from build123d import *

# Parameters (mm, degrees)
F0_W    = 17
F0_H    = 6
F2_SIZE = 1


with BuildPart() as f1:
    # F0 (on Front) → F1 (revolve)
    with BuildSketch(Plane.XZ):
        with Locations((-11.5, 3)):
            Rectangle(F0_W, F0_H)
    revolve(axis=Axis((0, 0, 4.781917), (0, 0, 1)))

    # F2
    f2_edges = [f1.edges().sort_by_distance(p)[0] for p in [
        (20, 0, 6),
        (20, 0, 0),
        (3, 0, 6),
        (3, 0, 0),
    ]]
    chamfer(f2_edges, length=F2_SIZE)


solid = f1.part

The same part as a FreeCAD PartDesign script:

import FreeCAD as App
import Part
import Sketcher
from FreeCAD import Vector


def edges_at(feature, points):
    """Names of the edges that pass closest to the given points."""
    edges = feature.Shape.Edges
    near = lambda p: min(range(len(edges)), key=lambda i: edges[i].distToShape(Part.Vertex(*p))[0])
    return sorted({f"Edge{near(p) + 1}" for p in points})


def add_polygon(sketch, points):
    """Adds a closed chain of lines whose ends are joined by coincident constraints."""
    first, n = sketch.GeometryCount, len(points)
    for a, b in zip(points, points[1:] + points[:1]):
        sketch.addGeometry(Part.LineSegment(App.Vector(*a, 0), App.Vector(*b, 0)), False)
    for i in range(n):
        sketch.addConstraint(Sketcher.Constraint("Coincident", first + i, 2, first + (i + 1) % n, 1))

doc = App.newDocument("Part")
body = doc.addObject("PartDesign::Body", "Body")

# Sketch on XZ plane
sketch1 = body.newObject("Sketcher::SketchObject", "Sketch")
sketch1.AttachmentSupport = (doc.getObject("XZ_Plane"), [""])
sketch1.MapMode = "FlatFace"
add_polygon(sketch1, [(-20, 6), (-20, 0), (-3, 0), (-3, 6)])  # lines 0-3
sketch1.addConstraint(Sketcher.Constraint("Vertical", 0))
sketch1.addConstraint(Sketcher.Constraint("Horizontal", 1))
sketch1.addConstraint(Sketcher.Constraint("Vertical", 2))
sketch1.addConstraint(Sketcher.Constraint("Horizontal", 3))
sketch1.addConstraint(Sketcher.Constraint("PointOnObject", 0, 2, -1))
sketch1.addConstraint(Sketcher.Constraint("DistanceX", 1, 1, 1, 2, 17.0))
sketch1.addConstraint(Sketcher.Constraint("DistanceY", 0, 2, 0, 1, 6.0))
sketch1.addConstraint(Sketcher.Constraint("DistanceX", 0, 2, -1, 1, 20.0))
revolution = body.newObject("PartDesign::Revolution", "Revolution")
revolution.Profile = sketch1
revolution.ReferenceAxis = (sketch1, ["V_Axis"])
revolution.Angle = 360
doc.recompute()

chamfer = body.newObject("PartDesign::Chamfer", "Chamfer")
chamfer.Base = (revolution, edges_at(revolution, [
    (20, 0, 6),
    (20, 0, 0),
    (3, 0, 6),
    (3, 0, 0),
]))
chamfer.Size = 1

doc.recompute()
